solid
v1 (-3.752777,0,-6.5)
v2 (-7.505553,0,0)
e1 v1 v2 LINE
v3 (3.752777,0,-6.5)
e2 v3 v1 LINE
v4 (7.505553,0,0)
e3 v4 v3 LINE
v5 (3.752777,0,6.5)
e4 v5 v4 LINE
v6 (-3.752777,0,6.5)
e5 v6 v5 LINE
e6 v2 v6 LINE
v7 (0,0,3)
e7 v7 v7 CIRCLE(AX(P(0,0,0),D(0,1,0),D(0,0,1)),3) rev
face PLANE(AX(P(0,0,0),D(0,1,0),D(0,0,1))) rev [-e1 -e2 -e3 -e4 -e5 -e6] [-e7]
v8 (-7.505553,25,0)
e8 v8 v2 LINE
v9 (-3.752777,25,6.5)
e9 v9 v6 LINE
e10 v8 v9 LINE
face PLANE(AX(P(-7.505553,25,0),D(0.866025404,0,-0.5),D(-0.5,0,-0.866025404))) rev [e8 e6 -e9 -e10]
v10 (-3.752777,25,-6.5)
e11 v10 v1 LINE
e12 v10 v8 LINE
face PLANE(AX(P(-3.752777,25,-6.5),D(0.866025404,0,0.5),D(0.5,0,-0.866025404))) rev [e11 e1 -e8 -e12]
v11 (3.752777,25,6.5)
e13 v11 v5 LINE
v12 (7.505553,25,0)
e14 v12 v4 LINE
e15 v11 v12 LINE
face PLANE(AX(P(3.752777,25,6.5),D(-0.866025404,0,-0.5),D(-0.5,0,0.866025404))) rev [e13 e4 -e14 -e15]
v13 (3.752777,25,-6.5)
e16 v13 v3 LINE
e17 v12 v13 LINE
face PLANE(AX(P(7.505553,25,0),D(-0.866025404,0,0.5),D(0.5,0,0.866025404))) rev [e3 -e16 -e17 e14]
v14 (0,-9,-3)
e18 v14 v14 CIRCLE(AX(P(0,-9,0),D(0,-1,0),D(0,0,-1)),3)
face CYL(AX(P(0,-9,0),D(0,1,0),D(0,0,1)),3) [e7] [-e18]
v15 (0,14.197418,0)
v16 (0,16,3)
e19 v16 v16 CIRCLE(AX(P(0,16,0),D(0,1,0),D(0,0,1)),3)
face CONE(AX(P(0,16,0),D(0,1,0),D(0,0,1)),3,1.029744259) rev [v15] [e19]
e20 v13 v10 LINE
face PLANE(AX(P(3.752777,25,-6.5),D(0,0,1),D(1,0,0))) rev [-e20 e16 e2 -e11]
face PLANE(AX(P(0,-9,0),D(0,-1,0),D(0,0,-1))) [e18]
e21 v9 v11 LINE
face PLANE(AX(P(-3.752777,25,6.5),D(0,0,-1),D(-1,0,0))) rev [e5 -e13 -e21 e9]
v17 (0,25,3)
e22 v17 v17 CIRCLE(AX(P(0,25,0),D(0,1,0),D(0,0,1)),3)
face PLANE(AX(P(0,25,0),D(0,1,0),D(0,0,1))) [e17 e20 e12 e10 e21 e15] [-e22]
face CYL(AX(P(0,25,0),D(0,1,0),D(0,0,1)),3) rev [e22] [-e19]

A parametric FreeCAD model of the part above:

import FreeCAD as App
import Part
import Sketcher
from FreeCAD import Vector
Q = App.Units.Quantity


def add_polygon(sketch, points):
    """Adds a closed chain of lines whose ends are joined by coincident constraints."""
    first, n = sketch.GeometryCount, len(points)
    for a, b in zip(points, points[1:] + points[:1]):
        sketch.addGeometry(Part.LineSegment(App.Vector(*a, 0), App.Vector(*b, 0)), False)
    for i in range(n):
        sketch.addConstraint(Sketcher.Constraint("Coincident", first + i, 2, first + (i + 1) % n, 1))

doc = App.newDocument("Part")
body = doc.addObject("PartDesign::Body", "Body")

sketch1 = body.newObject("Sketcher::SketchObject", "Sketch")
sketch1.AttachmentSupport = (doc.getObject("XZ_Plane"), [""])
sketch1.MapMode = "FlatFace"
add_polygon(sketch1, [(8, 0), (4, -6), (-4, -6), (-8, 0), (-4, 6), (4, 6)])
sketch1.addConstraint(Sketcher.Constraint("Horizontal", 1))
sketch1.addConstraint(Sketcher.Constraint("Horizontal", 4))
sketch1.addConstraint(Sketcher.Constraint("Symmetric", 0, 2, 3, 2, -1, 1))
sketch1.addConstraint(Sketcher.Constraint("Symmetric", 2, 2, 5, 2, -1, 1))
sketch1.addConstraint(Sketcher.Constraint("PointOnObject", 2, 2, -1))
sketch1.addConstraint(Sketcher.Constraint("Parallel", 2, 5))
sketch1.addConstraint(Sketcher.Constraint("Vertical", 1, 2, 3, 2))
sketch1.addConstraint(Sketcher.Constraint("Angle", 0, Q("-120 deg")))
sketch1.addConstraint(Sketcher.Constraint("DistanceY", 1, 2, 3, 2, 13.0))
sketch1.addConstraint(Sketcher.Constraint("DistanceX", 1, 2, 1, 1, 7.505554))
pad1 = body.newObject("PartDesign::Pad", "Pad")
pad1.Profile = sketch1
pad1.Length = 25
pad1.Reversed = True

sketch2 = body.newObject("Sketcher::SketchObject", "Sketch001")
sketch2.AttachmentSupport = (doc.getObject("XZ_Plane"), [""])
sketch2.MapMode = "FlatFace"
sketch2.addGeometry(Part.Circle(Vector(0, 0, 0), Vector(0, 0, 1), 3), False)
sketch2.addConstraint(Sketcher.Constraint("Coincident", 0, 3, -1, 1))
sketch2.addConstraint(Sketcher.Constraint("Diameter", 0, 6.0))
pad2 = body.newObject("PartDesign::Pad", "Pad001")
pad2.Profile = sketch2
pad2.Length = 9

sketch3 = body.newObject("Sketcher::SketchObject", "Sketch002")
sketch3.AttachmentSupport = (doc.getObject("XZ_Plane"), [""])
sketch3.MapMode = "FlatFace"
sketch3.AttachmentOffset = App.Placement(Vector(0, 0, -25), App.Rotation())
sketch3.addGeometry(Part.Circle(Vector(0, 0, 0), Vector(0, 0, 1), 3), False)
sketch3.addConstraint(Sketcher.Constraint("Coincident", 0, 3, -1, 1))
sketch3.addConstraint(Sketcher.Constraint("Diameter", 0, 6.0))
doc.recompute()
hole = body.newObject("PartDesign::Hole", "Hole")
hole.Profile = sketch3
hole.ThreadType = "None"
hole.Diameter = 6
hole.DepthType = "Dimension"
hole.Depth = 9
hole.DrillPoint = "Angled"
hole.DrillPointAngle = 118
hole.Reversed = True

doc.recompute()
